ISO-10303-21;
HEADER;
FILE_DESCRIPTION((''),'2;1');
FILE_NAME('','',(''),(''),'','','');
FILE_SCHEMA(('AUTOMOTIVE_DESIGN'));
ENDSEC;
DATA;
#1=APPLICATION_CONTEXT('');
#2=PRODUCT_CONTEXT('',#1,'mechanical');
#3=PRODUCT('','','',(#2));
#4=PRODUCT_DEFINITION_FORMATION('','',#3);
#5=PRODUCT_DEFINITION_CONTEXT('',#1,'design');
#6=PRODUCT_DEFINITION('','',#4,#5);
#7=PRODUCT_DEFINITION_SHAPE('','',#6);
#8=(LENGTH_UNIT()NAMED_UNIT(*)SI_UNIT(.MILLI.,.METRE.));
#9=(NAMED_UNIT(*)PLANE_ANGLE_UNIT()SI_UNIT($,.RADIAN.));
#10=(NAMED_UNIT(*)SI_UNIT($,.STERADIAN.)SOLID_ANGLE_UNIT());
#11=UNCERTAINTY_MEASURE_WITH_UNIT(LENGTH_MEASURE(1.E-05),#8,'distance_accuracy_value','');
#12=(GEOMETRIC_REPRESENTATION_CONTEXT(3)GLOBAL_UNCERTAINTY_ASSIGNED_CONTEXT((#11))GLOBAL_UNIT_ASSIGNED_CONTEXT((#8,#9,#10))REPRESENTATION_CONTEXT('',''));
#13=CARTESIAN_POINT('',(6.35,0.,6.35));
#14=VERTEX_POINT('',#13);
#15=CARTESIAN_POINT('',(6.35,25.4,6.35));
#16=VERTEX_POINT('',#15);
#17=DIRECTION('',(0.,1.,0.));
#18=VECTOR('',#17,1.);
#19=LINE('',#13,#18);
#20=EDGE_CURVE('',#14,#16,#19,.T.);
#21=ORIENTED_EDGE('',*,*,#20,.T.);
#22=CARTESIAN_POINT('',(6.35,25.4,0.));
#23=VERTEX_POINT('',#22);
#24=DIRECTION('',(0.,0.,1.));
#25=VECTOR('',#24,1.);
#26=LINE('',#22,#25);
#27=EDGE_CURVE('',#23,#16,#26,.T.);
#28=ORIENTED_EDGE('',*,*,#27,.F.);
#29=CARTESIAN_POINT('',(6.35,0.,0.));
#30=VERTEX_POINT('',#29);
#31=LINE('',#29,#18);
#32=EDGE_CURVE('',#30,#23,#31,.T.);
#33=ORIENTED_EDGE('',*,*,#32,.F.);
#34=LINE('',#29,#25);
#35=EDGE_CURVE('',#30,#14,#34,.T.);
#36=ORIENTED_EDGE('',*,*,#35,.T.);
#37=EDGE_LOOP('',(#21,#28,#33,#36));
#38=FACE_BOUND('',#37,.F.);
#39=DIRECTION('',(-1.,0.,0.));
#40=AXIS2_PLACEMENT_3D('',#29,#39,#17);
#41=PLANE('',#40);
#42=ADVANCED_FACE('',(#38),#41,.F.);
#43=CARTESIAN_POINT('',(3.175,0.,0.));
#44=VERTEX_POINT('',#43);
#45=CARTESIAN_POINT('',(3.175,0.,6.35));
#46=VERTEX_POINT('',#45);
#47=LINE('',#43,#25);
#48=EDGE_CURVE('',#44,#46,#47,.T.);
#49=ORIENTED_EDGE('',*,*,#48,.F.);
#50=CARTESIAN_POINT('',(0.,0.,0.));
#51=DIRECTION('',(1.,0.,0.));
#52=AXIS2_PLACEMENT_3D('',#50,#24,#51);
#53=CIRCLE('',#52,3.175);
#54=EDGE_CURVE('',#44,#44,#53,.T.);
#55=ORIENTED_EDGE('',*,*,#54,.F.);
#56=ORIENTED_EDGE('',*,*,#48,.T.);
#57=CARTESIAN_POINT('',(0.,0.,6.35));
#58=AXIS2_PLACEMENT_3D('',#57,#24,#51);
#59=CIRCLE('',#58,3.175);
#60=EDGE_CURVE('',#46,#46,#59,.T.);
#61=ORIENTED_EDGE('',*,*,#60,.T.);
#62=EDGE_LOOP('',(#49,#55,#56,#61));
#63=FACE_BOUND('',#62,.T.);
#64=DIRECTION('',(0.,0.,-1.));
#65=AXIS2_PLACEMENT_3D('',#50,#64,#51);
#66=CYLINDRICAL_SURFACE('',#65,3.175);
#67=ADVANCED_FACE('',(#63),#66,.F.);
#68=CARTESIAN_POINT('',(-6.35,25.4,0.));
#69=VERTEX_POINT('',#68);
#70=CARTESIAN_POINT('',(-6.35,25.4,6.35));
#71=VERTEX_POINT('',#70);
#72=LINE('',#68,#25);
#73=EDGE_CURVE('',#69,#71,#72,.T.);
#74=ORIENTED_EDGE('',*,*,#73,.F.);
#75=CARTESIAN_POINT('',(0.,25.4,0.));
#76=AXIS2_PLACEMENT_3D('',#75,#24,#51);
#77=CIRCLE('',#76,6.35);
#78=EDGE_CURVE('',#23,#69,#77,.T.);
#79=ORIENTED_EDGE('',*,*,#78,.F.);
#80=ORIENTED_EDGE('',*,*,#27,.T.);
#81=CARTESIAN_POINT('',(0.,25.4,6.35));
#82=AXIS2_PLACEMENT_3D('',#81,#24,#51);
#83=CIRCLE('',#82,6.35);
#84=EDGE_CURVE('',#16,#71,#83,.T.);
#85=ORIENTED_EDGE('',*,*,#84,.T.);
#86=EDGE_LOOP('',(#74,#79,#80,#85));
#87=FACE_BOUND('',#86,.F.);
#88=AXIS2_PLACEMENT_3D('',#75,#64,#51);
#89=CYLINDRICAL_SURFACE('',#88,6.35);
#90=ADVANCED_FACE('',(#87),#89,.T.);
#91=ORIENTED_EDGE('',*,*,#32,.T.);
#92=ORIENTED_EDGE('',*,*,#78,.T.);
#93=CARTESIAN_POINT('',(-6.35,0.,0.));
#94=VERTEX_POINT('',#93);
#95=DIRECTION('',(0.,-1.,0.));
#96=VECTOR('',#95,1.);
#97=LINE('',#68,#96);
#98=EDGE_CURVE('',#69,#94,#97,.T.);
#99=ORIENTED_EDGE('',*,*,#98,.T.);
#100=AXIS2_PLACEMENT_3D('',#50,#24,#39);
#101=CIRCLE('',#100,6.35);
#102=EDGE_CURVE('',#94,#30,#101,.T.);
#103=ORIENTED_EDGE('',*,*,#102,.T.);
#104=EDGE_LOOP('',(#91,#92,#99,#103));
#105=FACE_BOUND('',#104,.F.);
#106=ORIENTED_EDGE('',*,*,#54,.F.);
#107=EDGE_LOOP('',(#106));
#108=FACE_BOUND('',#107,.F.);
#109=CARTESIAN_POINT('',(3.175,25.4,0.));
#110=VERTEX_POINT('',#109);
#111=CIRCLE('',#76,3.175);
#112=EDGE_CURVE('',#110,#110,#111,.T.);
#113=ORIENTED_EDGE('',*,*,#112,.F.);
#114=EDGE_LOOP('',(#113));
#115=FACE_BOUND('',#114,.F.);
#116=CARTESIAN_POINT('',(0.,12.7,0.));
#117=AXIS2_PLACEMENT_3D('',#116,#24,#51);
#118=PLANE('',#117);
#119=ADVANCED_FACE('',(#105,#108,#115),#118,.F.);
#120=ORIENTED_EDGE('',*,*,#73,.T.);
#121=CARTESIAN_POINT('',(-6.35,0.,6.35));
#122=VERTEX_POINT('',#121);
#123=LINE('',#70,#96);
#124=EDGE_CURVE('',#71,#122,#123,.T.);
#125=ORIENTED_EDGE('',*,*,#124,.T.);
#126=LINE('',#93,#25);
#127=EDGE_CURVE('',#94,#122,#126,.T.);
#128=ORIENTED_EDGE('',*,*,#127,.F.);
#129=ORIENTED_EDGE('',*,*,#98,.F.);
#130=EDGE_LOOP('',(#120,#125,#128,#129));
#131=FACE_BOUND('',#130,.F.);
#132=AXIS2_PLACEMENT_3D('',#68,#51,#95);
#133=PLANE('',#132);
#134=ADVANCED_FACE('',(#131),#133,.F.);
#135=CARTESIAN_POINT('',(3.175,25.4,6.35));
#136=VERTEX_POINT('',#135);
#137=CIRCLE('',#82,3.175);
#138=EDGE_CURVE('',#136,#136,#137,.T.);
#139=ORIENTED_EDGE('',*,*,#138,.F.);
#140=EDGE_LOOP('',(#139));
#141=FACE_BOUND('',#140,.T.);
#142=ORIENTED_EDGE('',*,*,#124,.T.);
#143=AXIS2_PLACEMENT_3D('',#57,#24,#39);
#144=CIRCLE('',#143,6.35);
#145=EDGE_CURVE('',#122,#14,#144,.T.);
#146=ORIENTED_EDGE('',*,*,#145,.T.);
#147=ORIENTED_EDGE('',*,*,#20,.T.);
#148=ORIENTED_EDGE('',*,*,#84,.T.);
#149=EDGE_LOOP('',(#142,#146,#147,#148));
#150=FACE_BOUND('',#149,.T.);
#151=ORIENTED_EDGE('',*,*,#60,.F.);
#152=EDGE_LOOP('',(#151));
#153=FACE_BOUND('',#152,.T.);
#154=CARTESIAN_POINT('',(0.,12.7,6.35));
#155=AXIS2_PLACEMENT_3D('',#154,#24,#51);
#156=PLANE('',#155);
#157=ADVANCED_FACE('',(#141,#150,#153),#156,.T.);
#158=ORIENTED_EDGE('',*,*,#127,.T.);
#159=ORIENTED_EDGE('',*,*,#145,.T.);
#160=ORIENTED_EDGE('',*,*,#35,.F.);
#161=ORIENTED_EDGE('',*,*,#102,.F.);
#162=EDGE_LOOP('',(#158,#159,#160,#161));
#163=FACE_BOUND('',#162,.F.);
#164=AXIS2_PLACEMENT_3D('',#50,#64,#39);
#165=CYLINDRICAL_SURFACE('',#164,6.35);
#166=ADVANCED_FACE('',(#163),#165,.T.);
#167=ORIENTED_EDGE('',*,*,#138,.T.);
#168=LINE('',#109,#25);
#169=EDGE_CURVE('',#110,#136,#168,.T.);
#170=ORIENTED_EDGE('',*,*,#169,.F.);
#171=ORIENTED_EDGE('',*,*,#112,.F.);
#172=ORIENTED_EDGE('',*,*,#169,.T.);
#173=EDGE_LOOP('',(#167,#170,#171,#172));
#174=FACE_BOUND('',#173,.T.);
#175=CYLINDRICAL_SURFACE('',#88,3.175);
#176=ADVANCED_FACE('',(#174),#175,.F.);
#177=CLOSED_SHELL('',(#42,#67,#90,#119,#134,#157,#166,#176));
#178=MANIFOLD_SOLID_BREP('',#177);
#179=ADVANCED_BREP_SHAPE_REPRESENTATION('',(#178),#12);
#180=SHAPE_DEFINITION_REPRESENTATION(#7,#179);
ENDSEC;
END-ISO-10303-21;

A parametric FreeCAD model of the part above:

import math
import FreeCAD as App
import Part
import Sketcher
Q = App.Units.Quantity

doc = App.newDocument("Part")
body = doc.addObject("PartDesign::Body", "Body")

# Sketch on XY plane
sketch1 = body.newObject("Sketcher::SketchObject", "Sketch")
sketch1.AttachmentSupport = (doc.getObject("XY_Plane"), [""])
sketch1.MapMode = "FlatFace"
sketch1.addGeometry([
    Part.LineSegment(App.Vector(-6.3, 25.4, 0), App.Vector(-6.3, 0, 0)),  # 0
    Part.ArcOfCircle(Part.Circle(App.Vector(0, 0, 0), App.Vector(0, 0, 1), 6.3), math.radians(180), math.radians(360)),  # 1
    Part.LineSegment(App.Vector(6.3, 0, 0), App.Vector(6.3, 25.4, 0)),  # 2
    Part.ArcOfCircle(Part.Circle(App.Vector(0, 25.4, 0), App.Vector(0, 0, 1), 6.3), math.radians(0), math.radians(180)),  # 3
    Part.Circle(App.Vector(0, 0, 0), App.Vector(0, 0, 1), 3.2),  # 4
    Part.Circle(App.Vector(0, 25.4, 0), App.Vector(0, 0, 1), 3.2),  # 5
], False)
sketch1.addConstraint([
    Sketcher.Constraint("Tangent", 0, 2, 1, 1),
    Sketcher.Constraint("Tangent", 1, 2, 2, 1),
    Sketcher.Constraint("Tangent", 2, 2, 3, 1),
    Sketcher.Constraint("Tangent", 3, 2, 0, 1),
    Sketcher.Constraint("Vertical", 0),
    Sketcher.Constraint("Vertical", 2),
    Sketcher.Constraint("Coincident", 1, 3, -1, 1),
    Sketcher.Constraint("Coincident", 4, 3, -1, 1),
    Sketcher.Constraint("Coincident", 5, 3, 3, 3),
    Sketcher.Constraint("Equal", 4, 5),
    Sketcher.Constraint("Diameter", 4, Q("0.25 in")),
    Sketcher.Constraint("DistanceY", 0, 2, 0, 1, Q("1 in")),
    Sketcher.Constraint("Radius", 1, Q("0.25 in")),
])
pad1 = body.newObject("PartDesign::Pad", "Pad")
pad1.Profile = sketch1
pad1.Length = Q("0.25 in")

doc.recompute()
